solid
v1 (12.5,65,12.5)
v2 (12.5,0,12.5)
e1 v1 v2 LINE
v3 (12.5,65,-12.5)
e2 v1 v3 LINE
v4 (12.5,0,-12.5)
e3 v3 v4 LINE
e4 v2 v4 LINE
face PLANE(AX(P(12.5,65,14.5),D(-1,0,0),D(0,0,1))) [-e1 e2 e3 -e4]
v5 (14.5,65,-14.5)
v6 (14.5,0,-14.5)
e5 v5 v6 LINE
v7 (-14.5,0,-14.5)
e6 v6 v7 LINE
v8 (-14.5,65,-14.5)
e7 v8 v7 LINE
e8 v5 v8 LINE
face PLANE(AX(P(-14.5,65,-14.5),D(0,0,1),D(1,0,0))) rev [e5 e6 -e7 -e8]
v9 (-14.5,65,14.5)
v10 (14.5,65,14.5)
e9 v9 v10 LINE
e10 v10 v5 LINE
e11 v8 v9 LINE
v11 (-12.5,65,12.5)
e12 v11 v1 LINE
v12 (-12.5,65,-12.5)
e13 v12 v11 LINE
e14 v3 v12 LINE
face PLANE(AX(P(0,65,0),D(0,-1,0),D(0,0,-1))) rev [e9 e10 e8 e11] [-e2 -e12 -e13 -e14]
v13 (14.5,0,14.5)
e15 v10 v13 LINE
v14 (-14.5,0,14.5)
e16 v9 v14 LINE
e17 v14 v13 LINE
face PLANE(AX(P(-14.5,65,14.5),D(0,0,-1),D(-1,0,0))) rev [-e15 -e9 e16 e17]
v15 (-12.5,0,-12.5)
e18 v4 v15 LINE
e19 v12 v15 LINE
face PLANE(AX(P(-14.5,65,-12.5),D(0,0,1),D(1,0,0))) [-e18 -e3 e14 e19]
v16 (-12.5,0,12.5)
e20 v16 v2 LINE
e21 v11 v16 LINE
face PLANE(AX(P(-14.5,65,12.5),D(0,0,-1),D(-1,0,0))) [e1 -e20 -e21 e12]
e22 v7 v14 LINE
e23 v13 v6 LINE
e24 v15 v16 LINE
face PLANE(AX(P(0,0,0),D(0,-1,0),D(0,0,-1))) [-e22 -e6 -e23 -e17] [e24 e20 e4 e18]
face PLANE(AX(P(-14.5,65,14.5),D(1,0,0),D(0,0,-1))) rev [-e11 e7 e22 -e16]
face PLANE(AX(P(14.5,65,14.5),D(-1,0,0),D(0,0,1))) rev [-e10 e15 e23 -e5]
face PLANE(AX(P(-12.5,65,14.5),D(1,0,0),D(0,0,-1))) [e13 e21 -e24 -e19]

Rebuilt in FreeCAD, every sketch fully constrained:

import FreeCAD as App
import Part
import Sketcher

V = App.Vector


def faces_at(feature, points):
    """Names of the faces that lie closest to the given points."""
    faces = feature.Shape.Faces
    near = lambda p: min(range(len(faces)), key=lambda i: faces[i].distToShape(Part.Vertex(*p))[0])
    return sorted({f"Face{near(p) + 1}" for p in points})

doc = App.newDocument("Part")
body = doc.addObject("PartDesign::Body", "Body")

sketch1 = body.newObject("Sketcher::SketchObject", "Sketch")
sketch1.AttachmentSupport = (doc.getObject("XZ_Plane"), [""])
sketch1.MapMode = "FlatFace"
sketch1.addGeometry([
    Part.LineSegment(V(-14, -14, 0), V(-14, 14, 0)),
    Part.LineSegment(V(-14, 14, 0), V(14, 14, 0)),
    Part.LineSegment(V(14, 14, 0), V(14, -14, 0)),
    Part.LineSegment(V(14, -14, 0), V(-14, -14, 0)),
], False)
sketch1.addConstraint([
    Sketcher.Constraint("Coincident", 0, 2, 1, 1),
    Sketcher.Constraint("Coincident", 1, 2, 2, 1),
    Sketcher.Constraint("Coincident", 2, 2, 3, 1),
    Sketcher.Constraint("Coincident", 3, 2, 0, 1),
    Sketcher.Constraint("Vertical", 0),
    Sketcher.Constraint("Horizontal", 1),
    Sketcher.Constraint("Vertical", 2),
    Sketcher.Constraint("Horizontal", 3),
    Sketcher.Constraint("Symmetric", 0, 2, 2, 2, -1, 1),
    Sketcher.Constraint("Equal", 3, 0),
    Sketcher.Constraint("DistanceX", 1, 1, 1, 2, 29.0),
])
pad1 = body.newObject("PartDesign::Pad", "Pad")
pad1.Profile = sketch1
pad1.Length = 65
pad1.Reversed = True
doc.recompute()

thickness = body.newObject("PartDesign::Thickness", "Thickness")
thickness.Base = (pad1, faces_at(pad1, [(0, 65, 0), (0, 0, 0)]))
thickness.Value = 2
thickness.Reversed = True
thickness.Join = "Intersection"

doc.recompute()
